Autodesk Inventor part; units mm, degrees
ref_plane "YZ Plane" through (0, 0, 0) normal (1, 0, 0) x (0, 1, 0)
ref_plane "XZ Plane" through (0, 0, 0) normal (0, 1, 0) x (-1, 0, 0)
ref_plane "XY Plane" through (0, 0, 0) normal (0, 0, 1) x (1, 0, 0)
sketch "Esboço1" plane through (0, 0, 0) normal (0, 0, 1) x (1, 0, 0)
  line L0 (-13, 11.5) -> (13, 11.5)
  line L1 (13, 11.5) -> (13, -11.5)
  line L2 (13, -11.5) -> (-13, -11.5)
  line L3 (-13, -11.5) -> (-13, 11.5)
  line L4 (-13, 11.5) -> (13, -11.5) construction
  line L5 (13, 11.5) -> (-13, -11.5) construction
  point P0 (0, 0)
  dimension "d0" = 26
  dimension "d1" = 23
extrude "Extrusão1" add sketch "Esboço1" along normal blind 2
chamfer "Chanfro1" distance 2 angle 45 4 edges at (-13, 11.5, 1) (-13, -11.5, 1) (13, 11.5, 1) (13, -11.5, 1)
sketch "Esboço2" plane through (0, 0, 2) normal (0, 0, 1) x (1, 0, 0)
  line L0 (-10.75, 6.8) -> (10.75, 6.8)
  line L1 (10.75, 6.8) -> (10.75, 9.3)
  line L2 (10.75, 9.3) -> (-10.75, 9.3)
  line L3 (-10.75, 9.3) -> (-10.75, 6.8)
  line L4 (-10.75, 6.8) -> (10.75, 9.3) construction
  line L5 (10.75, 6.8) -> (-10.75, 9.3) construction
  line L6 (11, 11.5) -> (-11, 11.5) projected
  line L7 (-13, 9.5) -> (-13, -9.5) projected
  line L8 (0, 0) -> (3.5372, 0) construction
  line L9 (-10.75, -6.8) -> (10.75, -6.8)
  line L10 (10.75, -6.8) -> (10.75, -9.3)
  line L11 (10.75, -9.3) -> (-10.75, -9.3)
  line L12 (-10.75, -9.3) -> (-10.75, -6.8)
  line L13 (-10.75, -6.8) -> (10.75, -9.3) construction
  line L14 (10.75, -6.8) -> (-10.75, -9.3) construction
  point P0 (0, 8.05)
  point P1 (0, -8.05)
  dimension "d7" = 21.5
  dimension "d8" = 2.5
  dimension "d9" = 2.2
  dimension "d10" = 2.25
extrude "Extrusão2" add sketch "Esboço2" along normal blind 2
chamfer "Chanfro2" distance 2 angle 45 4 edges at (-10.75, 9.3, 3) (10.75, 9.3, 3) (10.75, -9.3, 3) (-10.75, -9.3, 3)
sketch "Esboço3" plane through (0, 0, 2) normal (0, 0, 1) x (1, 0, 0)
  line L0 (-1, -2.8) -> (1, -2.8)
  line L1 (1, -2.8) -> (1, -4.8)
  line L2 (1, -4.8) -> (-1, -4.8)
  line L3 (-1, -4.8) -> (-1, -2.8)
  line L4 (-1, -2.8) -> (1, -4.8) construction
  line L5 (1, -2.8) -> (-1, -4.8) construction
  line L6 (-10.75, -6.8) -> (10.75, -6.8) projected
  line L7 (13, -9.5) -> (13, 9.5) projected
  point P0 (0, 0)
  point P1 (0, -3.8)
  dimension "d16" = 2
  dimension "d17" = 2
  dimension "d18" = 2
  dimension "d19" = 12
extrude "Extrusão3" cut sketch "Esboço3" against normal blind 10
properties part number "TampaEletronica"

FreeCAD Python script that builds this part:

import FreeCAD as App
import Part
import Sketcher


def edges_at(feature, points):
    """Names of the edges that pass closest to the given points."""
    edges = feature.Shape.Edges
    near = lambda p: min(range(len(edges)), key=lambda i: edges[i].distToShape(Part.Vertex(*p))[0])
    return sorted({f"Edge{near(p) + 1}" for p in points})

doc = App.newDocument("Part")
body = doc.addObject("PartDesign::Body", "Body")

# Sketch on XY plane
sketch1 = body.newObject("Sketcher::SketchObject", "Sketch")
sketch1.AttachmentSupport = (doc.getObject("XY_Plane"), [""])
sketch1.MapMode = "FlatFace"
sketch1.addGeometry(Part.LineSegment(App.Vector(13, 11.5, 0), App.Vector(-13, 11.5, 0)), False)
sketch1.addGeometry(Part.LineSegment(App.Vector(-13, 11.5, 0), App.Vector(-13, -11.5, 0)), False)
sketch1.addGeometry(Part.LineSegment(App.Vector(-13, -11.5, 0), App.Vector(13, -11.5, 0)), False)
sketch1.addGeometry(Part.LineSegment(App.Vector(13, -11.5, 0), App.Vector(13, 11.5, 0)), False)
sketch1.addConstraint(Sketcher.Constraint("Coincident", 0, 2, 1, 1))
sketch1.addConstraint(Sketcher.Constraint("Coincident", 1, 2, 2, 1))
sketch1.addConstraint(Sketcher.Constraint("Coincident", 2, 2, 3, 1))
sketch1.addConstraint(Sketcher.Constraint("Coincident", 3, 2, 0, 1))
sketch1.addConstraint(Sketcher.Constraint("Horizontal", 0))
sketch1.addConstraint(Sketcher.Constraint("Vertical", 1))
sketch1.addConstraint(Sketcher.Constraint("Horizontal", 2))
sketch1.addConstraint(Sketcher.Constraint("Vertical", 3))
sketch1.addConstraint(Sketcher.Constraint("Symmetric", 0, 2, 2, 2, -1, 1))
sketch1.addConstraint(Sketcher.Constraint("DistanceX", 0, 2, 0, 1, 26.0))
sketch1.addConstraint(Sketcher.Constraint("DistanceY", 1, 2, 1, 1, 23.0))
pad1 = body.newObject("PartDesign::Pad", "Pad")
pad1.Profile = sketch1
pad1.Length = 2
doc.recompute()

chamfer = body.newObject("PartDesign::Chamfer", "Chamfer")
chamfer.Base = (pad1, edges_at(pad1, [
    (-13, 11.5, 1),
    (-13, -11.5, 1),
    (13, 11.5, 1),
    (13, -11.5, 1),
]))
chamfer.Size = 2

# Sketch on XY plane
sketch2 = body.newObject("Sketcher::SketchObject", "Sketch001")
sketch2.AttachmentSupport = (doc.getObject("XY_Plane"), [""])
sketch2.MapMode = "FlatFace"
sketch2.AttachmentOffset = App.Placement(App.Vector(0, 0, 2), App.Rotation())
sketch2.addGeometry(Part.LineSegment(App.Vector(-10.75, 9.3, 0), App.Vector(-10.75, 6.8, 0)), False)
sketch2.addGeometry(Part.LineSegment(App.Vector(-10.75, 6.8, 0), App.Vector(10.75, 6.8, 0)), False)
sketch2.addGeometry(Part.LineSegment(App.Vector(10.75, 6.8, 0), App.Vector(10.75, 9.3, 0)), False)
sketch2.addGeometry(Part.LineSegment(App.Vector(10.75, 9.3, 0), App.Vector(-10.75, 9.3, 0)), False)
sketch2.addGeometry(Part.LineSegment(App.Vector(10.75, -6.8, 0), App.Vector(-10.75, -6.8, 0)), False)
sketch2.addGeometry(Part.LineSegment(App.Vector(-10.75, -6.8, 0), App.Vector(-10.75, -9.3, 0)), False)
sketch2.addGeometry(Part.LineSegment(App.Vector(-10.75, -9.3, 0), App.Vector(10.75, -9.3, 0)), False)
sketch2.addGeometry(Part.LineSegment(App.Vector(10.75, -9.3, 0), App.Vector(10.75, -6.8, 0)), False)
sketch2.addConstraint(Sketcher.Constraint("Coincident", 0, 2, 1, 1))
sketch2.addConstraint(Sketcher.Constraint("Coincident", 1, 2, 2, 1))
sketch2.addConstraint(Sketcher.Constraint("Coincident", 2, 2, 3, 1))
sketch2.addConstraint(Sketcher.Constraint("Coincident", 3, 2, 0, 1))
sketch2.addConstraint(Sketcher.Constraint("Coincident", 4, 2, 5, 1))
sketch2.addConstraint(Sketcher.Constraint("Coincident", 5, 2, 6, 1))
sketch2.addConstraint(Sketcher.Constraint("Coincident", 6, 2, 7, 1))
sketch2.addConstraint(Sketcher.Constraint("Coincident", 7, 2, 4, 1))
sketch2.addConstraint(Sketcher.Constraint("Vertical", 0))
sketch2.addConstraint(Sketcher.Constraint("Horizontal", 1))
sketch2.addConstraint(Sketcher.Constraint("Vertical", 2))
sketch2.addConstraint(Sketcher.Constraint("Horizontal", 3))
sketch2.addConstraint(Sketcher.Constraint("Horizontal", 4))
sketch2.addConstraint(Sketcher.Constraint("Vertical", 5))
sketch2.addConstraint(Sketcher.Constraint("Horizontal", 6))
sketch2.addConstraint(Sketcher.Constraint("Vertical", 7))
sketch2.addConstraint(Sketcher.Constraint("Symmetric", 1, 2, 4, 2, -1, 1))
sketch2.addConstraint(Sketcher.Constraint("Symmetric", 3, 2, 6, 2, -1, 1))
sketch2.addConstraint(Sketcher.Constraint("Vertical", 3, 2, 4, 2))
sketch2.addConstraint(Sketcher.Constraint("DistanceX", 1, 1, 1, 2, 21.5))
sketch2.addConstraint(Sketcher.Constraint("DistanceY", 0, 2, 0, 1, 2.5))
sketch2.addConstraint(Sketcher.Constraint("DistanceY", -1, 1, 0, 2, 6.8))
pad2 = body.newObject("PartDesign::Pad", "Pad001")
pad2.Profile = sketch2
pad2.Length = 2
doc.recompute()

chamfer2 = body.newObject("PartDesign::Chamfer", "Chamfer001")
chamfer2.Base = (pad2, edges_at(pad2, [
    (-10.75, 9.3, 3),
    (10.75, 9.3, 3),
    (10.75, -9.3, 3),
    (-10.75, -9.3, 3),
]))
chamfer2.Size = 2

# Sketch on XY plane
sketch3 = body.newObject("Sketcher::SketchObject", "Sketch002")
sketch3.AttachmentSupport = (doc.getObject("XY_Plane"), [""])
sketch3.MapMode = "FlatFace"
sketch3.AttachmentOffset = App.Placement(App.Vector(0, 0, 2), App.Rotation())
sketch3.addGeometry(Part.LineSegment(App.Vector(1, -2.8, 0), App.Vector(-1, -2.8, 0)), False)
sketch3.addGeometry(Part.LineSegment(App.Vector(-1, -2.8, 0), App.Vector(-1, -4.8, 0)), False)
sketch3.addGeometry(Part.LineSegment(App.Vector(-1, -4.8, 0), App.Vector(1, -4.8, 0)), False)
sketch3.addGeometry(Part.LineSegment(App.Vector(1, -4.8, 0), App.Vector(1, -2.8, 0)), False)
sketch3.addConstraint(Sketcher.Constraint("Coincident", 0, 2, 1, 1))
sketch3.addConstraint(Sketcher.Constraint("Coincident", 1, 2, 2, 1))
sketch3.addConstraint(Sketcher.Constraint("Coincident", 2, 2, 3, 1))
sketch3.addConstraint(Sketcher.Constraint("Coincident", 3, 2, 0, 1))
sketch3.addConstraint(Sketcher.Constraint("Horizontal", 0))
sketch3.addConstraint(Sketcher.Constraint("Vertical", 1))
sketch3.addConstraint(Sketcher.Constraint("Horizontal", 2))
sketch3.addConstraint(Sketcher.Constraint("Vertical", 3))
sketch3.addConstraint(Sketcher.Constraint("Equal", 2, 1))
sketch3.addConstraint(Sketcher.Constraint("DistanceX", 0, 2, 0, 1, 2.0))
sketch3.addConstraint(Sketcher.Constraint("DistanceX", 0, 2, -1, 1, 1.0))
sketch3.addConstraint(Sketcher.Constraint("DistanceY", 0, 2, -1, 1, 2.8))
pocket1 = body.newObject("PartDesign::Pocket", "Pocket")
pocket1.Profile = sketch3
pocket1.Length = 10

doc.recompute()
